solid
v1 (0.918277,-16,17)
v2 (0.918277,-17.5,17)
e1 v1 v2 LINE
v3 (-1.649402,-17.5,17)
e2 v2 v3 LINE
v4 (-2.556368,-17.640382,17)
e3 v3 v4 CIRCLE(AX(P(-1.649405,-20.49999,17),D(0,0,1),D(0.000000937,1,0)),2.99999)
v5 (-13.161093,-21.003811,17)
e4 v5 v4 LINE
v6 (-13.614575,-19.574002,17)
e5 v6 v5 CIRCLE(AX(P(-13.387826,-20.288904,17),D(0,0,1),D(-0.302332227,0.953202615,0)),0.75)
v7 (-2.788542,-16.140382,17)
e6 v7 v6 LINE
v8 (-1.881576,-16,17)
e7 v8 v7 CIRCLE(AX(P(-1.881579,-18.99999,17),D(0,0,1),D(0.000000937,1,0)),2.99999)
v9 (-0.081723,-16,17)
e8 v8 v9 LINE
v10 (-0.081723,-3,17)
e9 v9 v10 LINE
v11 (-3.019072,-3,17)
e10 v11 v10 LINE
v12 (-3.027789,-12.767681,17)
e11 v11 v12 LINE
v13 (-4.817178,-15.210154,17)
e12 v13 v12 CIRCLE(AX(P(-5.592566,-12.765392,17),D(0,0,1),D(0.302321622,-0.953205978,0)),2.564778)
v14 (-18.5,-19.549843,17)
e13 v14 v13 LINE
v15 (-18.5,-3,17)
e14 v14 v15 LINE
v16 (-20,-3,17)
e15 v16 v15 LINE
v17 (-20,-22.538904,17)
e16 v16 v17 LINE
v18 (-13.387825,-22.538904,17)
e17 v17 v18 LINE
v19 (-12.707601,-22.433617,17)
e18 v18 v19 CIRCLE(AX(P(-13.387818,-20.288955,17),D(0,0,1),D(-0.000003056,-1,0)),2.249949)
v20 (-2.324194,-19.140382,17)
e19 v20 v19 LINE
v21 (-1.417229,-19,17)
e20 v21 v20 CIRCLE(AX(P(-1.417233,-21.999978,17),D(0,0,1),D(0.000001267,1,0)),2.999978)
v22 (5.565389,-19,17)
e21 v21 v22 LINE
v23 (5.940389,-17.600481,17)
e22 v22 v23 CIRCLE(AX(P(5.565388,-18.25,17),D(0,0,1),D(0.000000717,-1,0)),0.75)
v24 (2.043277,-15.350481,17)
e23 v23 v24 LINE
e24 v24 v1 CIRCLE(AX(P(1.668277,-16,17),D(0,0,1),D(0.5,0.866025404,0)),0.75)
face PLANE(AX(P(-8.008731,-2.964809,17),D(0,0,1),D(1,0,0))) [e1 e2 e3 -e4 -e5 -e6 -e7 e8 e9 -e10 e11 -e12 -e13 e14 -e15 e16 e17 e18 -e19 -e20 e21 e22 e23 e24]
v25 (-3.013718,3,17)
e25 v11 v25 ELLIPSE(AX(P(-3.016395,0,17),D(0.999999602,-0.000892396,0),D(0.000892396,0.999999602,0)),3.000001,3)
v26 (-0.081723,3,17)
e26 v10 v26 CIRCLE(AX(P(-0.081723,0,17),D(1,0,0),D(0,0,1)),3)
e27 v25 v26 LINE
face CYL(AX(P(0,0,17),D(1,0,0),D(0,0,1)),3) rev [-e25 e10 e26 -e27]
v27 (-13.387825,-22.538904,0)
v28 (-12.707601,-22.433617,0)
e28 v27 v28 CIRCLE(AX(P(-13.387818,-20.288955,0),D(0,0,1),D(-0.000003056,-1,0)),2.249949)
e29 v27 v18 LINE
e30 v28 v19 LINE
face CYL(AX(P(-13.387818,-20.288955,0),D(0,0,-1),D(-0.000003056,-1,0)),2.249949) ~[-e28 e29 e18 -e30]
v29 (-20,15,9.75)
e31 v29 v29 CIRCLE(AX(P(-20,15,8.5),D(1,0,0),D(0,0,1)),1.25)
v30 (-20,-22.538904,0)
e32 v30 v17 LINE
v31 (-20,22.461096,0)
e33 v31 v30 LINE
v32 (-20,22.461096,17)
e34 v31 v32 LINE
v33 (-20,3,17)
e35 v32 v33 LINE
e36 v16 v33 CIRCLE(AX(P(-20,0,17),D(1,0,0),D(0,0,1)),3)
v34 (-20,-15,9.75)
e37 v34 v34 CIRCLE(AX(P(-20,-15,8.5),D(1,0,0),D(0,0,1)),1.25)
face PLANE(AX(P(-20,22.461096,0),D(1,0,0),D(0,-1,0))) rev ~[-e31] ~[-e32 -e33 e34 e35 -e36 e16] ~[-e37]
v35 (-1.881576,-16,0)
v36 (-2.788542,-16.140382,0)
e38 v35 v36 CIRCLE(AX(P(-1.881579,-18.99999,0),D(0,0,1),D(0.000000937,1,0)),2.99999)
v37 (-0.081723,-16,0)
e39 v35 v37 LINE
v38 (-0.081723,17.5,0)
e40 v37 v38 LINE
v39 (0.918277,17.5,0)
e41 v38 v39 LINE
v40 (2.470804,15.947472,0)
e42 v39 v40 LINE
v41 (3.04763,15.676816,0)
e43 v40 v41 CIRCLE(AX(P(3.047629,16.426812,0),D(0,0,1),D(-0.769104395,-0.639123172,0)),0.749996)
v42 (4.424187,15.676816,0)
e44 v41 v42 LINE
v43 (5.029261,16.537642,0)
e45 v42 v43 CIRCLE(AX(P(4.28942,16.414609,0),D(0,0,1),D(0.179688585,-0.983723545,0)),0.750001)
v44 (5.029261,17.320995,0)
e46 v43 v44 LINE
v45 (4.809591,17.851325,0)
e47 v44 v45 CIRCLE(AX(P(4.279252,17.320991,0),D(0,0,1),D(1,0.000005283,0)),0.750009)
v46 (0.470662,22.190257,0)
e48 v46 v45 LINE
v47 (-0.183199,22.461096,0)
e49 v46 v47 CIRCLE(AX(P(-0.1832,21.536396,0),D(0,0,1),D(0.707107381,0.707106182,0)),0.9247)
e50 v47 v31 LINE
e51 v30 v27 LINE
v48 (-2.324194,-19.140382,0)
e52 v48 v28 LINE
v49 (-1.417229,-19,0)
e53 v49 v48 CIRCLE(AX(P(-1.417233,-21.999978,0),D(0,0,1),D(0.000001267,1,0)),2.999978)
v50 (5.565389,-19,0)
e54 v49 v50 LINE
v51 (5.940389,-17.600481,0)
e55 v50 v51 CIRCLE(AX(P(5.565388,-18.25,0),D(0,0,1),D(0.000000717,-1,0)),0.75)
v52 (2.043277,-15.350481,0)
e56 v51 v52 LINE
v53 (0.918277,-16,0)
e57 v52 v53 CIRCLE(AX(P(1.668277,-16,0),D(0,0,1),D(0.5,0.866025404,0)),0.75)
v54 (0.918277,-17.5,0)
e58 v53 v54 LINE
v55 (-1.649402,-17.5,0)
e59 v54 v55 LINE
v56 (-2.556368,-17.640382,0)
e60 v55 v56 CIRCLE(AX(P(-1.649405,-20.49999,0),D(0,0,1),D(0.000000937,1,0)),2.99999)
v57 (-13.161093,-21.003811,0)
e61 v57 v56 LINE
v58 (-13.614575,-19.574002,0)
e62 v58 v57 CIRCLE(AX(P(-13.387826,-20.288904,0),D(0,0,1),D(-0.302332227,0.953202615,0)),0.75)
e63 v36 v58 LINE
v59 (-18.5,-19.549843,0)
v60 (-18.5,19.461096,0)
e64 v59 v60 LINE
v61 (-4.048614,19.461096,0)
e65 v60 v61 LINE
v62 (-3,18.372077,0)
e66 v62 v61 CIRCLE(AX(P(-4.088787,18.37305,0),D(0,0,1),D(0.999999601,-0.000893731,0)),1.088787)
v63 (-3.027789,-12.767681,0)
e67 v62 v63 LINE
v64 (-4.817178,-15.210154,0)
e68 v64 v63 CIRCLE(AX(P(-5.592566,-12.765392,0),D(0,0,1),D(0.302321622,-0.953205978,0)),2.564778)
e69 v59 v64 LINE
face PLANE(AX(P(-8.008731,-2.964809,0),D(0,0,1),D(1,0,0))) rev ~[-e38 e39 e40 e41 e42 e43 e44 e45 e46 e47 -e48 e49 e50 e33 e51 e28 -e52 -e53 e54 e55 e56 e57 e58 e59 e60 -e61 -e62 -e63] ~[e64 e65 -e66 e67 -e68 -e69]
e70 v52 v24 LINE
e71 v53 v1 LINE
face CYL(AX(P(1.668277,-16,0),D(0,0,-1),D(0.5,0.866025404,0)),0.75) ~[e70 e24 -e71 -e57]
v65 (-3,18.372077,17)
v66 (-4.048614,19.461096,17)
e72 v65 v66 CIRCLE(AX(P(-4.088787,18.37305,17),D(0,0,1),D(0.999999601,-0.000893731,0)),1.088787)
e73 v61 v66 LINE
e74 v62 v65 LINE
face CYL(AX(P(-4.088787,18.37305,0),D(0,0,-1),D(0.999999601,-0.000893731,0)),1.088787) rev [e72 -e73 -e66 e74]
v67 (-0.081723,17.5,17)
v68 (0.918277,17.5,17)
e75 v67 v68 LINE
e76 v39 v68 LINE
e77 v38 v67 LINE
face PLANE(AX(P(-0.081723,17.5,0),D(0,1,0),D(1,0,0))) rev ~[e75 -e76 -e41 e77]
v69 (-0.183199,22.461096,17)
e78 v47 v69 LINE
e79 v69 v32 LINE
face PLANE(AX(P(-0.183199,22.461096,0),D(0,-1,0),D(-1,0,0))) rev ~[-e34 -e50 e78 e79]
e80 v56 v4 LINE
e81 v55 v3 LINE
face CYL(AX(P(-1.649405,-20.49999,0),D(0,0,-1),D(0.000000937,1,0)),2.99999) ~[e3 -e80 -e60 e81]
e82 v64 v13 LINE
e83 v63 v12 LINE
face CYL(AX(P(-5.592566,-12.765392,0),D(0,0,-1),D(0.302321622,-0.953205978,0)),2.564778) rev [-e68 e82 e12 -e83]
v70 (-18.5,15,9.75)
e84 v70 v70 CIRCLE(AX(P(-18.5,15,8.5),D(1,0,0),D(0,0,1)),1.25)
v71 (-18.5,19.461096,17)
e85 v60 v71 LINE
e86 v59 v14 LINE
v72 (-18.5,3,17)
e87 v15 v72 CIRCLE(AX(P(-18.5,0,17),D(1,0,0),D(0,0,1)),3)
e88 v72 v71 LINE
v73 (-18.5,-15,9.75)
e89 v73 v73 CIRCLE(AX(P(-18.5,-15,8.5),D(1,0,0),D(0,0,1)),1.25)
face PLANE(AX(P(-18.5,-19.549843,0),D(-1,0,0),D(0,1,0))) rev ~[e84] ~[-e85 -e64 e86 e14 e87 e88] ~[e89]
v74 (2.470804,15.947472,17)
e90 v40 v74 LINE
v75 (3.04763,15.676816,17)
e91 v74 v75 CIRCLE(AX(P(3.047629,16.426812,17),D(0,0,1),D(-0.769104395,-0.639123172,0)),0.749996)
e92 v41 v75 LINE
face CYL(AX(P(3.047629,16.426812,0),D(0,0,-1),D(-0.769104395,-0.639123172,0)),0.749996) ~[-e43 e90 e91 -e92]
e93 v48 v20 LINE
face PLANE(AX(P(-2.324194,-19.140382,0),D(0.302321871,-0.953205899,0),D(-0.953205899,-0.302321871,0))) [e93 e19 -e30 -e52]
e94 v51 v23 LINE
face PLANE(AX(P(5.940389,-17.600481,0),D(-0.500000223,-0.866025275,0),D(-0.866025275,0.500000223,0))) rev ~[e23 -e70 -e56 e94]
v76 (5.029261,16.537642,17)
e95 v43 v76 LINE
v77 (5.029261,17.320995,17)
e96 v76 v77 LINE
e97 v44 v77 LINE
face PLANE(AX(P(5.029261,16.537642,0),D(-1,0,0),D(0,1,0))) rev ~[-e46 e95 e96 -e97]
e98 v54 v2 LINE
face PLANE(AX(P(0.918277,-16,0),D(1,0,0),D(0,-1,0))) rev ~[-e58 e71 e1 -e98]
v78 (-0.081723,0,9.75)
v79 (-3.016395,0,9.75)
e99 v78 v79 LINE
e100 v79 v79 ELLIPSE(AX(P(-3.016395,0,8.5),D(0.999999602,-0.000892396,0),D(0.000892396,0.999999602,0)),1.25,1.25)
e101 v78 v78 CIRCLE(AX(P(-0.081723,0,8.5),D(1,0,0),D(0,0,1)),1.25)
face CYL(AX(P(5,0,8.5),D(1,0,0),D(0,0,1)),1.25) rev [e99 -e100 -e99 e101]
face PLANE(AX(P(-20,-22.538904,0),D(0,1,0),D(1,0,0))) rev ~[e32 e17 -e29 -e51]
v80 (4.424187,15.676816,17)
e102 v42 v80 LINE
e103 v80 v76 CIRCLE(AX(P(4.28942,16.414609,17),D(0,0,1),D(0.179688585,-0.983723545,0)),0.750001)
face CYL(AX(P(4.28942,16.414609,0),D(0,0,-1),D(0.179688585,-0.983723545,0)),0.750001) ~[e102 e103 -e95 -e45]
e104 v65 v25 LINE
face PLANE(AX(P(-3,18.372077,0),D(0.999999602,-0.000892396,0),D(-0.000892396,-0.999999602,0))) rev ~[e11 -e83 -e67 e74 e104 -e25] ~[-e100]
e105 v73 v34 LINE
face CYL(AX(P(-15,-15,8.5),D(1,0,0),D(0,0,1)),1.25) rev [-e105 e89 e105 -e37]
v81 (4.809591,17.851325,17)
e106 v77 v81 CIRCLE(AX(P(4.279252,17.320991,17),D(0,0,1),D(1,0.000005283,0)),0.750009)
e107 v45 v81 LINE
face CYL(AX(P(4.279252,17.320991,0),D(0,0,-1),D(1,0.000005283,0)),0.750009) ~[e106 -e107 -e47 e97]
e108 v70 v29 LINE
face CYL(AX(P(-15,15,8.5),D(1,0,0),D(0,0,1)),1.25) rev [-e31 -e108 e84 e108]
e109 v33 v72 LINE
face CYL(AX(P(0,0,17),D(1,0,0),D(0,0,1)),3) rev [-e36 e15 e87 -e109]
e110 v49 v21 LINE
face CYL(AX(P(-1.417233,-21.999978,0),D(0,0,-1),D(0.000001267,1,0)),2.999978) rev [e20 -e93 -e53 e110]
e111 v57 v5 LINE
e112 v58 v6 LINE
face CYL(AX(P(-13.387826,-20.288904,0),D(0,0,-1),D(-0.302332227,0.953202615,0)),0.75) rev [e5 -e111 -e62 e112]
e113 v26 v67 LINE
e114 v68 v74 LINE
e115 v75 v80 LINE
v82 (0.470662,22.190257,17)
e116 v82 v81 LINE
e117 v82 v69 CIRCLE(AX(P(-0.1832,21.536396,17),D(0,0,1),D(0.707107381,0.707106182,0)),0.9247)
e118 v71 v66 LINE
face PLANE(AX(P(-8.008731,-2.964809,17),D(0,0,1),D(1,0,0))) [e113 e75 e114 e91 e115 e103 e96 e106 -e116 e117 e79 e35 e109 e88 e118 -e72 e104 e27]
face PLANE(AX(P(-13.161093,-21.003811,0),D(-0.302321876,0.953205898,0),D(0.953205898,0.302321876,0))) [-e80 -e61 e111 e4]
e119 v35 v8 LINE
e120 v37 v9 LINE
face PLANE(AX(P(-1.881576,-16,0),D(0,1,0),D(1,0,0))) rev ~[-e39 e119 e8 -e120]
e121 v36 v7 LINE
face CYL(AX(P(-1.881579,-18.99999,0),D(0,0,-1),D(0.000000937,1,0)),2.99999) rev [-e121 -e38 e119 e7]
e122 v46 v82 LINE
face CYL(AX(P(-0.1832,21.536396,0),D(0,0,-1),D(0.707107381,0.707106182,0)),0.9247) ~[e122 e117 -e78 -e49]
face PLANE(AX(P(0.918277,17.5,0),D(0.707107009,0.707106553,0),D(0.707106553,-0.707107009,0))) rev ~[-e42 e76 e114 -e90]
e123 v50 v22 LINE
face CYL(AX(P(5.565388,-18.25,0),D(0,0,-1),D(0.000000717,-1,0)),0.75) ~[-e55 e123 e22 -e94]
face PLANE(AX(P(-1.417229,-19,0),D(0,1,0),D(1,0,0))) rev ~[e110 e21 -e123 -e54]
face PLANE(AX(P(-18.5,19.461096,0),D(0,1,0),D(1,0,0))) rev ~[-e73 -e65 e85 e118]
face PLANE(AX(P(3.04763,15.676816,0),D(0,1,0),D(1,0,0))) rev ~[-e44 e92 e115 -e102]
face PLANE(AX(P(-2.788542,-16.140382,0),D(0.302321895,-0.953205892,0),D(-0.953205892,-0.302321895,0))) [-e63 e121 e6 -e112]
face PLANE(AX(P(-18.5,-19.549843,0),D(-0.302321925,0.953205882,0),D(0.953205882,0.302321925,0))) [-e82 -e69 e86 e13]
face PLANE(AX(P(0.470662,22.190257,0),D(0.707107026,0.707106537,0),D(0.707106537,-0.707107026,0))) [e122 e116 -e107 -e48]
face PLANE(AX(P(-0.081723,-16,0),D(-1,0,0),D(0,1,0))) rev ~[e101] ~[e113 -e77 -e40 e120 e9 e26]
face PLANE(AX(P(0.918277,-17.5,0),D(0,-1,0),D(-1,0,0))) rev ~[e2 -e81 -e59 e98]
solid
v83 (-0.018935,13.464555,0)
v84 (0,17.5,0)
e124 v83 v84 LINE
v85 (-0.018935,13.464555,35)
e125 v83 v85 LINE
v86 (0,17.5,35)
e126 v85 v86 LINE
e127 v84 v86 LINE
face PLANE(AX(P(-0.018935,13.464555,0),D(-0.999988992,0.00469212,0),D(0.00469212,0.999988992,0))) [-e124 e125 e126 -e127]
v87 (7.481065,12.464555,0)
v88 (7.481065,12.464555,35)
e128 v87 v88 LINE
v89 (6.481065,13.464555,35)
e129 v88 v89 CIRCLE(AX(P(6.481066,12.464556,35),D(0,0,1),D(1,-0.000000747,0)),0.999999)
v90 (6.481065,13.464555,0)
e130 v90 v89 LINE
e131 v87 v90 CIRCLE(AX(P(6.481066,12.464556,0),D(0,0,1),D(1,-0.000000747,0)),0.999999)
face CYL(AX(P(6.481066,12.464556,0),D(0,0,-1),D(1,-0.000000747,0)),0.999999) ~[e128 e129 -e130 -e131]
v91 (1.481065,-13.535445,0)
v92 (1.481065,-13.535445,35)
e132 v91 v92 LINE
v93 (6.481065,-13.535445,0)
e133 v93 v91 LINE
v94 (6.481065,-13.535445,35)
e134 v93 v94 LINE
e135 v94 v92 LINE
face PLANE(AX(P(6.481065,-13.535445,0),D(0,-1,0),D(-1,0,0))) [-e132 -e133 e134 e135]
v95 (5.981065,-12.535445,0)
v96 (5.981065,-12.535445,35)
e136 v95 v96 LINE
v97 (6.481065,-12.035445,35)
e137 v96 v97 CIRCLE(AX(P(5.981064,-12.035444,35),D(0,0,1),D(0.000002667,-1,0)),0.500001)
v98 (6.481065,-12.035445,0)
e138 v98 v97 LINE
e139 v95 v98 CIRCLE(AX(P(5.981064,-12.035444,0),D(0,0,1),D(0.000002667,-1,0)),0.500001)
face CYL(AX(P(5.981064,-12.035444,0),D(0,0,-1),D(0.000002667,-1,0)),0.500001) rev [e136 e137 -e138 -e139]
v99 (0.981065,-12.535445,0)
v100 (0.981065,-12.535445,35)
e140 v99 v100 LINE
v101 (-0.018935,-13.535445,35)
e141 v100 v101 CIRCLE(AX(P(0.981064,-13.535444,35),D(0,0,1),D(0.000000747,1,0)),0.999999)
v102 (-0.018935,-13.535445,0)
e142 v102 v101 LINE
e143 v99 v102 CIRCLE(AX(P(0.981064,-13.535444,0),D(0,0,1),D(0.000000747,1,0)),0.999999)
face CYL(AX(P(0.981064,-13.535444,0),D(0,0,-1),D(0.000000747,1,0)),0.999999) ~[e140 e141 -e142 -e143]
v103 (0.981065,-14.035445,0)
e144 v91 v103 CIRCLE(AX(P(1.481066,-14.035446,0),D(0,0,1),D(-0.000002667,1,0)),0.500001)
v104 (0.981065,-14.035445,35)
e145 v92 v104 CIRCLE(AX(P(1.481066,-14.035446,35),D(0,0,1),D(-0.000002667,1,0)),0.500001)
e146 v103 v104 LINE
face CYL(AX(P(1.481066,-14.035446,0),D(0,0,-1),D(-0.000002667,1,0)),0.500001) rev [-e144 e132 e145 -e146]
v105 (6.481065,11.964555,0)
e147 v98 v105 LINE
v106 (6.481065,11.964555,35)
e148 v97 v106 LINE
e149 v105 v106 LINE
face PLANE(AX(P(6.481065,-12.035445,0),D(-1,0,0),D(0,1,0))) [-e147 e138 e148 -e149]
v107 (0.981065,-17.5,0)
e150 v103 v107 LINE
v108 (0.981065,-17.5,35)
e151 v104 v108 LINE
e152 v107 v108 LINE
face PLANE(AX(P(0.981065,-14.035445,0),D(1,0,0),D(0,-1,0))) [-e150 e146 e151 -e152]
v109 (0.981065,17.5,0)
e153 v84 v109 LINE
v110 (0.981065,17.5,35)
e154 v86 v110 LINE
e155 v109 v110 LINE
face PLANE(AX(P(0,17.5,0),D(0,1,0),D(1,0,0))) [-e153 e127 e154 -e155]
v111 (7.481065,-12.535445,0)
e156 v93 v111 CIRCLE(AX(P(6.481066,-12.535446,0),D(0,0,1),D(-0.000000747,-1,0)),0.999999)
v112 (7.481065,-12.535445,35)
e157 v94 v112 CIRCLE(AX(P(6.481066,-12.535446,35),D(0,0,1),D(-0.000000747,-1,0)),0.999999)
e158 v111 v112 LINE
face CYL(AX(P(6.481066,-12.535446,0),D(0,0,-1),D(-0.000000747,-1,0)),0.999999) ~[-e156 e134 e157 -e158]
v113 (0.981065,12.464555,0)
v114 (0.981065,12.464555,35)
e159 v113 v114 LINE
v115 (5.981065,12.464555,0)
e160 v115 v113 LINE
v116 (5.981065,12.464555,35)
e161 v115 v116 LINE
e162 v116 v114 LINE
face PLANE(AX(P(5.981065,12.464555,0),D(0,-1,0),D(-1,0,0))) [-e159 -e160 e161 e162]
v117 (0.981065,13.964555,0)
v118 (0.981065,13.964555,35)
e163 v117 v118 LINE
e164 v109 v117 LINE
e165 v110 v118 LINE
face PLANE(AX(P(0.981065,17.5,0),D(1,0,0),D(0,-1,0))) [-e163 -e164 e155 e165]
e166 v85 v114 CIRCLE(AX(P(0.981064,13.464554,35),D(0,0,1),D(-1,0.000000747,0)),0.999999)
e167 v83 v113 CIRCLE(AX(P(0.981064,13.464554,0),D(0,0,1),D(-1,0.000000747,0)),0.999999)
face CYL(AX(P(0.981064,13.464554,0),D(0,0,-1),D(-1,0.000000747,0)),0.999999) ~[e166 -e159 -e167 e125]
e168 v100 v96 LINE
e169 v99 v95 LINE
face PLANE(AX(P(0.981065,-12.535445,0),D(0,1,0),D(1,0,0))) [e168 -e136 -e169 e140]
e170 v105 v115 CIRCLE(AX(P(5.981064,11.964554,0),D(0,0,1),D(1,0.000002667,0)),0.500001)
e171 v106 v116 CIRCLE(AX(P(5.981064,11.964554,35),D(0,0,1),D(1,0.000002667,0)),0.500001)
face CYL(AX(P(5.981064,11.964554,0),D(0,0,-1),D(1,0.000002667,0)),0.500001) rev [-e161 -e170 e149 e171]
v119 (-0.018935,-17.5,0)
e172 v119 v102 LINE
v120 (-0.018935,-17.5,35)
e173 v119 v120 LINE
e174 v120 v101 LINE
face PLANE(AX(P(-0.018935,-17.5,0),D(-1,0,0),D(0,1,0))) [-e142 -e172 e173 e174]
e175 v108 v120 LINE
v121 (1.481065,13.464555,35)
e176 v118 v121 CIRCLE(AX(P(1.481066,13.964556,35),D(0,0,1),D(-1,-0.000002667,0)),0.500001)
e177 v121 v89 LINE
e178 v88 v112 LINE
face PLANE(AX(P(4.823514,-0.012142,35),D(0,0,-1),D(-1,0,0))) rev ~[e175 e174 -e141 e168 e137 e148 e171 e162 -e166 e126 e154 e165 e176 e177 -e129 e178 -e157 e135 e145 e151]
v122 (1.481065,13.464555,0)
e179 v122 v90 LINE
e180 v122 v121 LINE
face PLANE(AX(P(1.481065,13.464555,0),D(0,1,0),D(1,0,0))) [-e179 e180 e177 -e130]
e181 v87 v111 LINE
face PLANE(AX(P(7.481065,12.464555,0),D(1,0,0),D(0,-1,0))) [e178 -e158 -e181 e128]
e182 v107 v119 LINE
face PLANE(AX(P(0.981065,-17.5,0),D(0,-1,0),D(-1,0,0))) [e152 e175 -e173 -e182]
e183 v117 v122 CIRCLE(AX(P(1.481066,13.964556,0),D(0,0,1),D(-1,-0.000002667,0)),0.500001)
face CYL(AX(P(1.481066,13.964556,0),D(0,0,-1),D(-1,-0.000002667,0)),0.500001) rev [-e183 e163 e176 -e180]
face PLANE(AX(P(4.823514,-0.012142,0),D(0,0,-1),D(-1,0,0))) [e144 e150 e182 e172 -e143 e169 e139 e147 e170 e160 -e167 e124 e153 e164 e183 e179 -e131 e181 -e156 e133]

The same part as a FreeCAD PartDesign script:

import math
import FreeCAD as App
import Part
import Sketcher
from FreeCAD import Vector

doc = App.newDocument("Part")
body = doc.addObject("PartDesign::Body", "Body")

# Sketch on XY plane
sketch1 = body.newObject("Sketcher::SketchObject", "Sketch")
sketch1.AttachmentSupport = (doc.getObject("XY_Plane"), [""])
sketch1.MapMode = "FlatFace"
sketch1.addGeometry(Part.LineSegment(Vector(0.981065, 17.5, 0), Vector(0, 17.5, 0)), False)
sketch1.addGeometry(Part.LineSegment(Vector(0, 17.5, 0), Vector(-0.018935, 13.464555, 0)), False)
sketch1.addGeometry(Part.ArcOfCircle(Part.Circle(Vector(0.981064, 13.464554, 0), Vector(0, 0, 1), 0.999999), math.radians(179.999957), math.radians(270.000043)), False)
sketch1.addGeometry(Part.LineSegment(Vector(0.981065, 12.464555, 0), Vector(5.981065, 12.464555, 0)), False)
sketch1.addGeometry(Part.ArcOfCircle(Part.Circle(Vector(5.981064, 11.964554, 0), Vector(0, 0, 1), 0.500001), math.radians(0.000153), math.radians(89.999847)), False)
sketch1.addGeometry(Part.LineSegment(Vector(6.481065, 11.964555, 0), Vector(6.481065, -12.035445, 0)), False)
sketch1.addGeometry(Part.ArcOfCircle(Part.Circle(Vector(5.981064, -12.035444, 0), Vector(0, 0, 1), 0.500001), math.radians(-89.999847), math.radians(-0.000153)), False)
sketch1.addGeometry(Part.LineSegment(Vector(5.981065, -12.535445, 0), Vector(0.981065, -12.535445, 0)), False)
sketch1.addGeometry(Part.ArcOfCircle(Part.Circle(Vector(0.981064, -13.535444, 0), Vector(0, 0, 1), 0.999999), math.radians(89.999957), math.radians(180.000043)), False)
sketch1.addGeometry(Part.LineSegment(Vector(-0.018935, -13.535445, 0), Vector(-0.018935, -17.5, 0)), False)
sketch1.addGeometry(Part.LineSegment(Vector(-0.018935, -17.5, 0), Vector(0.981065, -17.5, 0)), False)
sketch1.addGeometry(Part.LineSegment(Vector(0.981065, -17.5, 0), Vector(0.981065, -14.035445, 0)), False)
sketch1.addGeometry(Part.ArcOfCircle(Part.Circle(Vector(1.481066, -14.035446, 0), Vector(0, 0, 1), 0.500001), math.radians(90.000153), math.radians(179.999847)), False)
sketch1.addGeometry(Part.LineSegment(Vector(1.481065, -13.535445, 0), Vector(6.481065, -13.535445, 0)), False)
sketch1.addGeometry(Part.ArcOfCircle(Part.Circle(Vector(6.481066, -12.535446, 0), Vector(0, 0, 1), 0.999999), math.radians(-90.000043), math.radians(0.000043)), False)
sketch1.addGeometry(Part.LineSegment(Vector(7.481065, -12.535445, 0), Vector(7.481065, 12.464555, 0)), False)
sketch1.addGeometry(Part.ArcOfCircle(Part.Circle(Vector(6.481066, 12.464556, 0), Vector(0, 0, 1), 0.999999), math.radians(-0.000043), math.radians(90.000043)), False)
sketch1.addGeometry(Part.LineSegment(Vector(6.481065, 13.464555, 0), Vector(1.481065, 13.464555, 0)), False)
sketch1.addGeometry(Part.ArcOfCircle(Part.Circle(Vector(1.481066, 13.964556, 0), Vector(0, 0, 1), 0.500001), math.radians(-179.999847), math.radians(-90.000153)), False)
sketch1.addGeometry(Part.LineSegment(Vector(0.981065, 13.964555, 0), Vector(0.981065, 17.5, 0)), False)
sketch1.addConstraint(Sketcher.Constraint("Coincident", 0, 2, 1, 1))
sketch1.addConstraint(Sketcher.Constraint("Coincident", 1, 2, 2, 1))
sketch1.addConstraint(Sketcher.Constraint("Tangent", 2, 2, 3, 1))
sketch1.addConstraint(Sketcher.Constraint("Coincident", 3, 2, 4, 2))
sketch1.addConstraint(Sketcher.Constraint("Coincident", 4, 1, 5, 1))
sketch1.addConstraint(Sketcher.Constraint("Coincident", 5, 2, 6, 2))
sketch1.addConstraint(Sketcher.Constraint("Coincident", 6, 1, 7, 1))
sketch1.addConstraint(Sketcher.Constraint("Tangent", 7, 2, 8, 1))
sketch1.addConstraint(Sketcher.Constraint("Tangent", 8, 2, 9, 1))
sketch1.addConstraint(Sketcher.Constraint("Coincident", 9, 2, 10, 1))
sketch1.addConstraint(Sketcher.Constraint("Coincident", 10, 2, 11, 1))
sketch1.addConstraint(Sketcher.Constraint("Coincident", 11, 2, 12, 2))
sketch1.addConstraint(Sketcher.Constraint("Coincident", 12, 1, 13, 1))
sketch1.addConstraint(Sketcher.Constraint("Tangent", 13, 2, 14, 1))
sketch1.addConstraint(Sketcher.Constraint("Tangent", 14, 2, 15, 1))
sketch1.addConstraint(Sketcher.Constraint("Tangent", 15, 2, 16, 1))
sketch1.addConstraint(Sketcher.Constraint("Tangent", 16, 2, 17, 1))
sketch1.addConstraint(Sketcher.Constraint("Coincident", 17, 2, 18, 2))
sketch1.addConstraint(Sketcher.Constraint("Coincident", 18, 1, 19, 1))
sketch1.addConstraint(Sketcher.Constraint("Coincident", 19, 2, 0, 1))
sketch1.addConstraint(Sketcher.Constraint("Horizontal", 0))
sketch1.addConstraint(Sketcher.Constraint("Horizontal", 3))
sketch1.addConstraint(Sketcher.Constraint("Vertical", 5))
sketch1.addConstraint(Sketcher.Constraint("Horizontal", 7))
sketch1.addConstraint(Sketcher.Constraint("Vertical", 9))
sketch1.addConstraint(Sketcher.Constraint("Horizontal", 10))
sketch1.addConstraint(Sketcher.Constraint("Vertical", 11))
sketch1.addConstraint(Sketcher.Constraint("Horizontal", 13))
sketch1.addConstraint(Sketcher.Constraint("Vertical", 15))
sketch1.addConstraint(Sketcher.Constraint("Horizontal", 17))
sketch1.addConstraint(Sketcher.Constraint("Vertical", 19))
sketch1.addConstraint(Sketcher.Constraint("Equal", 4, 6))
sketch1.addConstraint(Sketcher.Constraint("Equal", 2, 8))
sketch1.addConstraint(Sketcher.Constraint("Equal", 6, 12))
sketch1.addConstraint(Sketcher.Constraint("Equal", 8, 14))
sketch1.addConstraint(Sketcher.Constraint("Equal", 14, 16))
sketch1.addConstraint(Sketcher.Constraint("Equal", 12, 18))
sketch1.addConstraint(Sketcher.Constraint("Symmetric", 10, 2, 19, 2, -1))
sketch1.addConstraint(Sketcher.Constraint("PointOnObject", 0, 2, -2))
sketch1.addConstraint(Sketcher.Constraint("Horizontal", 2, 3, 1, 2))
sketch1.addConstraint(Sketcher.Constraint("Horizontal", 16, 3, 2, 2))
sketch1.addConstraint(Sketcher.Constraint("Horizontal", 6, 3, 5, 2))
sketch1.addConstraint(Sketcher.Constraint("Horizontal", 14, 3, 6, 1))
sketch1.addConstraint(Sketcher.Constraint("Horizontal", 12, 3, 11, 2))
sketch1.addConstraint(Sketcher.Constraint("Vertical", 2, 3, 8, 3))
sketch1.addConstraint(Sketcher.Constraint("Vertical", 6, 3, 3, 2))
sketch1.addConstraint(Sketcher.Constraint("Vertical", 16, 3, 4, 1))
sketch1.addConstraint(Sketcher.Constraint("Vertical", 3, 2, 6, 1))
sketch1.addConstraint(Sketcher.Constraint("Vertical", 7, 2, 10, 2))
sketch1.addConstraint(Sketcher.Constraint("Vertical", 18, 3, 12, 1))
sketch1.addConstraint(Sketcher.Constraint("Vertical", 12, 1, 17, 2))
sketch1.addConstraint(Sketcher.Constraint("Radius", 2, 0.999999))
sketch1.addConstraint(Sketcher.Constraint("Radius", 4, 0.500001))
sketch1.addConstraint(Sketcher.Constraint("DistanceX", 3, 1, 3, 2, 5.0))
sketch1.addConstraint(Sketcher.Constraint("DistanceY", 5, 2, 5, 1, 24.0))
sketch1.addConstraint(Sketcher.Constraint("DistanceY", 15, 1, 15, 2, 25.0))
sketch1.addConstraint(Sketcher.Constraint("DistanceY", -1, 1, 0, 2, 17.5))
sketch1.addConstraint(Sketcher.Constraint("DistanceY", 2, 3, 18, 1, 0.500001))
sketch1.addConstraint(Sketcher.Constraint("Distance", 1, 4.035489))
sketch1.addConstraint(Sketcher.Constraint("DistanceX", 0, 2, 0, 1, 0.981065))
pad1 = body.newObject("PartDesign::Pad", "Pad")
pad1.Profile = sketch1
pad1.Length = 35
body2 = doc.addObject("PartDesign::Body", "Body001")

# Sketch on XY plane
sketch2 = body2.newObject("Sketcher::SketchObject", "Sketch001")
sketch2.AttachmentSupport = (doc.getObject("XY_Plane001"), [""])
sketch2.MapMode = "FlatFace"
sketch2.addGeometry(Part.Circle(Vector(0, 0, 0), Vector(0, 0, 1), 1.25), False)
sketch2.addConstraint(Sketcher.Constraint("Coincident", 0, 3, -1, 1))
sketch2.addConstraint(Sketcher.Constraint("Diameter", 0, 2.5))
pad2 = body2.newObject("PartDesign::Pad", "Pad001")
pad2.Profile = sketch2
pad2.Length = 10
body3 = doc.addObject("PartDesign::Body", "Body002")
doc.recompute()

body2.Placement = App.Placement(Vector(0, 0, 0), App.Rotation(Vector(0, 1, 0), 270))
boolean = body3.newObject("PartDesign::Boolean", "Boolean")
boolean.Type = "Fuse"
boolean.addObjects([body2])
body4 = doc.addObject("PartDesign::Body", "Body003")
doc.recompute()

body3.Placement = App.Placement(Vector(5, 0, 8.5), App.Rotation(Vector(0, 0, 1), 0))
boolean2 = body4.newObject("PartDesign::Boolean", "Boolean001")
boolean2.Type = "Fuse"
boolean2.addObjects([body3])
body5 = doc.addObject("PartDesign::Body", "Body004")

# Sketch on XY plane
sketch3 = body5.newObject("Sketcher::SketchObject", "Sketch002")
sketch3.AttachmentSupport = (doc.getObject("XY_Plane004"), [""])
sketch3.MapMode = "FlatFace"
sketch3.addGeometry(Part.Circle(Vector(0, 0, 0), Vector(0, 0, 1), 1.25), False)
sketch3.addConstraint(Sketcher.Constraint("Coincident", 0, 3, -1, 1))
sketch3.addConstraint(Sketcher.Constraint("Diameter", 0, 2.5))
pad3 = body5.newObject("PartDesign::Pad", "Pad002")
pad3.Profile = sketch3
pad3.Length = 10
body6 = doc.addObject("PartDesign::Body", "Body005")
doc.recompute()

body5.Placement = App.Placement(Vector(0, 0, 0), App.Rotation(Vector(0, 1, 0), 270))
boolean3 = body6.newObject("PartDesign::Boolean", "Boolean002")
boolean3.Type = "Fuse"
boolean3.addObjects([body5])
body7 = doc.addObject("PartDesign::Body", "Body006")
doc.recompute()

body6.Placement = App.Placement(Vector(-15, -15, 8.5), App.Rotation(Vector(0, 0, 1), 0))
boolean4 = body7.newObject("PartDesign::Boolean", "Boolean003")
boolean4.Type = "Fuse"
boolean4.addObjects([body6])
body8 = doc.addObject("PartDesign::Body", "Body007")

# Sketch on XY plane
sketch4 = body8.newObject("Sketcher::SketchObject", "Sketch003")
sketch4.AttachmentSupport = (doc.getObject("XY_Plane007"), [""])
sketch4.MapMode = "FlatFace"
sketch4.addGeometry(Part.Circle(Vector(0, 0, 0), Vector(0, 0, 1), 1.25), False)
sketch4.addConstraint(Sketcher.Constraint("Coincident", 0, 3, -1, 1))
sketch4.addConstraint(Sketcher.Constraint("Diameter", 0, 2.5))
pad4 = body8.newObject("PartDesign::Pad", "Pad003")
pad4.Profile = sketch4
pad4.Length = 10
body9 = doc.addObject("PartDesign::Body", "Body008")
doc.recompute()

body8.Placement = App.Placement(Vector(0, 0, 0), App.Rotation(Vector(0, 1, 0), 270))
boolean5 = body9.newObject("PartDesign::Boolean", "Boolean004")
boolean5.Type = "Fuse"
boolean5.addObjects([body8])
body10 = doc.addObject("PartDesign::Body", "Body009")
doc.recompute()

body9.Placement = App.Placement(Vector(-15, 15, 8.5), App.Rotation(Vector(0, 0, 1), 0))
boolean6 = body10.newObject("PartDesign::Boolean", "Boolean005")
boolean6.Type = "Fuse"
boolean6.addObjects([body9])
body11 = doc.addObject("PartDesign::Body", "Body010")

# Sketch on XY plane
sketch5 = body11.newObject("Sketcher::SketchObject", "Sketch004")
sketch5.AttachmentSupport = (doc.getObject("XY_Plane010"), [""])
sketch5.MapMode = "FlatFace"
sketch5.addGeometry(Part.Circle(Vector(0, 0, 0), Vector(0, 0, 1), 3), False)
sketch5.addConstraint(Sketcher.Constraint("Coincident", 0, 3, -1, 1))
sketch5.addConstraint(Sketcher.Constraint("Diameter", 0, 6.0))
pad5 = body11.newObject("PartDesign::Pad", "Pad004")
pad5.Profile = sketch5
pad5.Length = 25
body12 = doc.addObject("PartDesign::Body", "Body011")
doc.recompute()

body11.Placement = App.Placement(Vector(0, 0, 0), App.Rotation(Vector(0, 1, 0), 270))
boolean7 = body12.newObject("PartDesign::Boolean", "Boolean006")
boolean7.Type = "Fuse"
boolean7.addObjects([body11])
body13 = doc.addObject("PartDesign::Body", "Body012")
body13.AllowCompound = True
doc.recompute()

body12.Placement = App.Placement(Vector(0, 0, 17), App.Rotation(Vector(0, 0, 1), 0))
boolean8 = body13.newObject("PartDesign::Boolean", "Boolean007")
boolean8.Type = "Fuse"
boolean8.addObjects([body12])
doc.recompute()

boolean9 = body13.newObject("PartDesign::Boolean", "Boolean008")
boolean9.Type = "Fuse"
boolean9.addObjects([body4])
doc.recompute()

boolean10 = body13.newObject("PartDesign::Boolean", "Boolean009")
boolean10.Type = "Fuse"
boolean10.addObjects([body7])
doc.recompute()

boolean11 = body13.newObject("PartDesign::Boolean", "Boolean010")
boolean11.Type = "Fuse"
boolean11.addObjects([body10])
body14 = doc.addObject("PartDesign::Body", "Body013")

# Sketch on XY plane
sketch6 = body14.newObject("Sketcher::SketchObject", "Sketch005")
sketch6.AttachmentSupport = (doc.getObject("XY_Plane013"), [""])
sketch6.MapMode = "FlatFace"
sketch6.addGeometry(Part.LineSegment(Vector(-0.183199, 22.461096, 0), Vector(-20, 22.461096, 0)), False)
sketch6.addGeometry(Part.LineSegment(Vector(-20, 22.461096, 0), Vector(-20, -22.538904, 0)), False)
sketch6.addGeometry(Part.LineSegment(Vector(-20, -22.538904, 0), Vector(-13.387825, -22.538904, 0)), False)
sketch6.addGeometry(Part.ArcOfCircle(Part.Circle(Vector(-13.387818, -20.288955, 0), Vector(0, 0, 1), 2.249949), math.radians(-90.000175), math.radians(-72.402661)), False)
sketch6.addGeometry(Part.LineSegment(Vector(-12.707601, -22.433617, 0), Vector(-2.324194, -19.140382, 0)), False)
sketch6.addGeometry(Part.ArcOfCircle(Part.Circle(Vector(-1.417233, -21.999978, 0), Vector(0, 0, 1), 2.999978), math.radians(89.999927), math.radians(107.597161)), False)
sketch6.addGeometry(Part.LineSegment(Vector(-1.417229, -19, 0), Vector(5.565389, -19, 0)), False)
sketch6.addGeometry(Part.ArcOfCircle(Part.Circle(Vector(5.565388, -18.25, 0), Vector(0, 0, 1), 0.75), math.radians(-89.999959), math.radians(59.999958)), False)
sketch6.addGeometry(Part.LineSegment(Vector(5.940389, -17.600481, 0), Vector(2.043277, -15.350481, 0)), False)
sketch6.addGeometry(Part.ArcOfCircle(Part.Circle(Vector(1.668277, -16, 0), Vector(0, 0, 1), 0.75), math.radians(60), math.radians(179.999996)), False)
sketch6.addGeometry(Part.LineSegment(Vector(0.918277, -16, 0), Vector(0.918277, -17.5, 0)), False)
sketch6.addGeometry(Part.LineSegment(Vector(0.918277, -17.5, 0), Vector(-1.649402, -17.5, 0)), False)
sketch6.addGeometry(Part.ArcOfCircle(Part.Circle(Vector(-1.649405, -20.49999, 0), Vector(0, 0, 1), 2.99999), math.radians(89.999946), math.radians(107.597123)), False)
sketch6.addGeometry(Part.LineSegment(Vector(-2.556368, -17.640382, 0), Vector(-13.161093, -21.003811, 0)), False)
sketch6.addGeometry(Part.ArcOfCircle(Part.Circle(Vector(-13.387826, -20.288904, 0), Vector(0, 0, 1), 0.75), math.radians(107.597736), math.radians(287.596429)), False)
sketch6.addGeometry(Part.LineSegment(Vector(-13.614575, -19.574002, 0), Vector(-2.788542, -16.140382, 0)), False)
sketch6.addGeometry(Part.ArcOfCircle(Part.Circle(Vector(-1.881579, -18.99999, 0), Vector(0, 0, 1), 2.99999), math.radians(89.999946), math.radians(107.597123)), False)
sketch6.addGeometry(Part.LineSegment(Vector(-1.881576, -16, 0), Vector(-0.081723, -16, 0)), False)
sketch6.addGeometry(Part.LineSegment(Vector(-0.081723, -16, 0), Vector(-0.081723, 17.5, 0)), False)
sketch6.addGeometry(Part.LineSegment(Vector(-0.081723, 17.5, 0), Vector(0.918277, 17.5, 0)), False)
sketch6.addGeometry(Part.LineSegment(Vector(0.918277, 17.5, 0), Vector(2.470804, 15.947472, 0)), False)
sketch6.addGeometry(Part.ArcOfCircle(Part.Circle(Vector(3.047629, 16.426812, 0), Vector(0, 0, 1), 0.749996), math.radians(-140.273532), math.radians(-89.999912)), False)
sketch6.addGeometry(Part.LineSegment(Vector(3.04763, 15.676816, 0), Vector(4.424187, 15.676816, 0)), False)
sketch6.addGeometry(Part.ArcOfCircle(Part.Circle(Vector(4.28942, 16.414609, 0), Vector(0, 0, 1), 0.750001), math.radians(-79.648379), math.radians(9.441665)), False)
sketch6.addGeometry(Part.LineSegment(Vector(5.029261, 16.537642, 0), Vector(5.029261, 17.320995, 0)), False)
sketch6.addGeometry(Part.ArcOfCircle(Part.Circle(Vector(4.279252, 17.320991, 0), Vector(0, 0, 1), 0.750009), math.radians(0.000303), math.radians(44.99972)), False)
sketch6.addGeometry(Part.LineSegment(Vector(4.809591, 17.851325, 0), Vector(0.470662, 22.190257, 0)), False)
sketch6.addGeometry(Part.ArcOfCircle(Part.Circle(Vector(-0.1832, 21.536396, 0), Vector(0, 0, 1), 0.9247), math.radians(44.999951), math.radians(89.999913)), False)
sketch6.addGeometry(Part.LineSegment(Vector(-18.5, -19.549843, 0), Vector(-18.5, 19.461096, 0)), False)
sketch6.addGeometry(Part.LineSegment(Vector(-18.5, 19.461096, 0), Vector(-4.048614, 19.461096, 0)), False)
sketch6.addGeometry(Part.ArcOfCircle(Part.Circle(Vector(-4.088787, 18.37305, 0), Vector(0, 0, 1), 1.088787), math.radians(-0.051207), math.radians(87.885484)), False)
sketch6.addGeometry(Part.LineSegment(Vector(-3, 18.372077, 0), Vector(-3.027789, -12.767681, 0)), False)
sketch6.addGeometry(Part.ArcOfCircle(Part.Circle(Vector(-5.592566, -12.765392, 0), Vector(0, 0, 1), 2.564778), math.radians(-72.402901), math.radians(-0.051125)), False)
sketch6.addGeometry(Part.LineSegment(Vector(-4.817178, -15.210154, 0), Vector(-18.5, -19.549843, 0)), False)
sketch6.addConstraint(Sketcher.Constraint("Coincident", 0, 2, 1, 1))
sketch6.addConstraint(Sketcher.Constraint("Coincident", 1, 2, 2, 1))
sketch6.addConstraint(Sketcher.Constraint("Coincident", 2, 2, 3, 1))
sketch6.addConstraint(Sketcher.Constraint("Coincident", 3, 2, 4, 1))
sketch6.addConstraint(Sketcher.Constraint("Coincident", 4, 2, 5, 2))
sketch6.addConstraint(Sketcher.Constraint("Coincident", 5, 1, 6, 1))
sketch6.addConstraint(Sketcher.Constraint("Coincident", 6, 2, 7, 1))
sketch6.addConstraint(Sketcher.Constraint("Coincident", 7, 2, 8, 1))
sketch6.addConstraint(Sketcher.Constraint("Coincident", 8, 2, 9, 1))
sketch6.addConstraint(Sketcher.Constraint("Coincident", 9, 2, 10, 1))
sketch6.addConstraint(Sketcher.Constraint("Coincident", 10, 2, 11, 1))
sketch6.addConstraint(Sketcher.Constraint("Coincident", 11, 2, 12, 1))
sketch6.addConstraint(Sketcher.Constraint("Coincident", 12, 2, 13, 1))
sketch6.addConstraint(Sketcher.Constraint("Coincident", 13, 2, 14, 2))
sketch6.addConstraint(Sketcher.Constraint("Coincident", 14, 1, 15, 1))
sketch6.addConstraint(Sketcher.Constraint("Coincident", 15, 2, 16, 2))
sketch6.addConstraint(Sketcher.Constraint("Coincident", 16, 1, 17, 1))
sketch6.addConstraint(Sketcher.Constraint("Coincident", 17, 2, 18, 1))
sketch6.addConstraint(Sketcher.Constraint("Coincident", 18, 2, 19, 1))
sketch6.addConstraint(Sketcher.Constraint("Coincident", 19, 2, 20, 1))
sketch6.addConstraint(Sketcher.Constraint("Coincident", 20, 2, 21, 1))
sketch6.addConstraint(Sketcher.Constraint("Coincident", 21, 2, 22, 1))
sketch6.addConstraint(Sketcher.Constraint("Coincident", 22, 2, 23, 1))
sketch6.addConstraint(Sketcher.Constraint("Coincident", 23, 2, 24, 1))
sketch6.addConstraint(Sketcher.Constraint("Coincident", 24, 2, 25, 1))
sketch6.addConstraint(Sketcher.Constraint("Coincident", 25, 2, 26, 1))
sketch6.addConstraint(Sketcher.Constraint("Coincident", 26, 2, 27, 1))
sketch6.addConstraint(Sketcher.Constraint("Coincident", 27, 2, 0, 1))
sketch6.addConstraint(Sketcher.Constraint("Coincident", 28, 2, 29, 1))
sketch6.addConstraint(Sketcher.Constraint("Coincident", 29, 2, 30, 2))
sketch6.addConstraint(Sketcher.Constraint("Coincident", 30, 1, 31, 1))
sketch6.addConstraint(Sketcher.Constraint("Coincident", 31, 2, 32, 2))
sketch6.addConstraint(Sketcher.Constraint("Coincident", 32, 1, 33, 1))
sketch6.addConstraint(Sketcher.Constraint("Coincident", 33, 2, 28, 1))
sketch6.addConstraint(Sketcher.Constraint("Horizontal", 0))
sketch6.addConstraint(Sketcher.Constraint("Vertical", 1))
sketch6.addConstraint(Sketcher.Constraint("Horizontal", 2))
sketch6.addConstraint(Sketcher.Constraint("Horizontal", 6))
sketch6.addConstraint(Sketcher.Constraint("Vertical", 10))
sketch6.addConstraint(Sketcher.Constraint("Horizontal", 11))
sketch6.addConstraint(Sketcher.Constraint("Horizontal", 17))
sketch6.addConstraint(Sketcher.Constraint("Vertical", 18))
sketch6.addConstraint(Sketcher.Constraint("Horizontal", 19))
sketch6.addConstraint(Sketcher.Constraint("Horizontal", 22))
sketch6.addConstraint(Sketcher.Constraint("Vertical", 24))
sketch6.addConstraint(Sketcher.Constraint("Vertical", 28))
sketch6.addConstraint(Sketcher.Constraint("Horizontal", 29))
sketch6.addConstraint(Sketcher.Constraint("DistanceX", 19, 1, 19, 2, 1.0))
sketch6.addConstraint(Sketcher.Constraint("DistanceY", 1, 2, 1, 1, 45.0))
sketch6.addConstraint(Sketcher.Constraint("Radius", 7, 0.75))
sketch6.addConstraint(Sketcher.Constraint("Radius", 9, 0.75))
sketch6.addConstraint(Sketcher.Constraint("Radius", 14, 0.75))
sketch6.addConstraint(Sketcher.Constraint("Radius", 23, 0.750001))
sketch6.addConstraint(Sketcher.Constraint("DistanceY", 10, 2, 10, 1, 1.5))
sketch6.addConstraint(Sketcher.Constraint("DistanceY", 18, 1, 18, 2, 33.5))
sketch6.addConstraint(Sketcher.Constraint("DistanceY", 9, 3, -1, 1, 16.0))
sketch6.addConstraint(Sketcher.Constraint("DistanceX", 0, 2, -1, 1, 20.0))
sketch6.addConstraint(Sketcher.Constraint("DistanceY", 5, 1, -1, 1, 19.0))
sketch6.addConstraint(Sketcher.Constraint("DistanceY", 9, 2, -1, 1, 16.0))
sketch6.addConstraint(Sketcher.Constraint("DistanceY", 16, 1, -1, 1, 16.0))
sketch6.addConstraint(Sketcher.Constraint("DistanceX", 30, 1, -1, 1, 3.0))
sketch6.addConstraint(Sketcher.Constraint("DistanceY", 4, 2, 15, 2, 3.0))
sketch6.addConstraint(Sketcher.Constraint("DistanceX", 17, 2, 9, 2, 1.0))
sketch6.addConstraint(Sketcher.Constraint("DistanceY", 28, 2, 0, 2, 3.0))
sketch6.addConstraint(Sketcher.Constraint("DistanceX", 28, 2, -1, 1, 18.5))
sketch6.addConstraint(Sketcher.Constraint("Radius", 27, 0.9247))
sketch6.addConstraint(Sketcher.Constraint("DistanceY", 12, 3, 16, 3, 1.5))
sketch6.addConstraint(Sketcher.Constraint("DistanceY", 4, 2, 12, 2, 1.5))
sketch6.addConstraint(Sketcher.Constraint("Radius", 3, 2.249949))
sketch6.addConstraint(Sketcher.Constraint("Radius", 12, 2.99999))
sketch6.addConstraint(Sketcher.Constraint("Radius", 25, 0.750009))
sketch6.addConstraint(Sketcher.Constraint("DistanceY", 1, 2, 14, 3, 2.25))
sketch6.addConstraint(Sketcher.Constraint("DistanceY", 7, 2, 8, 2, 2.25))
sketch6.addConstraint(Sketcher.Constraint("DistanceX", 0, 2, 0, 1, 19.816801))
sketch6.addConstraint(Sketcher.Constraint("DistanceY", 14, 1, -1, 1, 19.574002))
sketch6.addConstraint(Sketcher.Constraint("Radius", 5, 2.999978))
sketch6.addConstraint(Sketcher.Constraint("Radius", 21, 0.749996))
sketch6.addConstraint(Sketcher.Constraint("Radius", 30, 1.088787))
sketch6.addConstraint(Sketcher.Constraint("Radius", 32, 2.564778))
sketch6.addConstraint(Sketcher.Constraint("DistanceX", 16, 3, 23, 3, 6.170999))
sketch6.addConstraint(Sketcher.Constraint("DistanceX", 7, 3, 7, 2, 0.375001))
sketch6.addConstraint(Sketcher.Constraint("DistanceX", 6, 2, 7, 2, 0.375))
sketch6.addConstraint(Sketcher.Constraint("DistanceX", 11, 2, 11, 1, 2.567679))
sketch6.addConstraint(Sketcher.Constraint("DistanceY", 28, 1, 28, 2, 39.010939))
sketch6.addConstraint(Sketcher.Constraint("DistanceX", 27, 3, -1, 1, 0.1832))
sketch6.addConstraint(Sketcher.Constraint("DistanceX", 3, 2, -1, 1, 12.707601))
sketch6.addConstraint(Sketcher.Constraint("DistanceY", 16, 3, 21, 3, 35.426802))
sketch6.addConstraint(Sketcher.Constraint("DistanceY", 16, 3, 23, 3, 35.4146))
sketch6.addConstraint(Sketcher.Constraint("DistanceY", 16, 3, 32, 3, 6.234598))
sketch6.addConstraint(Sketcher.Constraint("DistanceY", 14, 3, 14, 1, 0.714902))
sketch6.addConstraint(Sketcher.Constraint("DistanceY", 15, 2, 31, 2, 3.372701))
sketch6.addConstraint(Sketcher.Constraint("DistanceX", 32, 1, 16, 1, 2.935602))
sketch6.addConstraint(Sketcher.Constraint("Distance", 4, 10.893142))
sketch6.addConstraint(Sketcher.Constraint("Distance", 31, 31.13977))
sketch6.addConstraint(Sketcher.Constraint("Distance", 33, 14.35453))
sketch6.addConstraint(Sketcher.Constraint("DistanceX", 2, 1, 2, 2, 6.612175))
sketch6.addConstraint(Sketcher.Constraint("DistanceX", 6, 1, 6, 2, 6.982618))
sketch6.addConstraint(Sketcher.Constraint("DistanceX", 17, 1, 17, 2, 1.799853))
sketch6.addConstraint(Sketcher.Constraint("DistanceX", 22, 1, 22, 2, 1.376557))
sketch6.addConstraint(Sketcher.Constraint("DistanceX", 29, 1, 29, 2, 14.451386))
sketch6.addConstraint(Sketcher.Constraint("DistanceY", 24, 1, 24, 2, 0.783353))
sketch6.addConstraint(Sketcher.Constraint("DistanceX", 3, 3, -1, 1, 13.387818))
sketch6.addConstraint(Sketcher.Constraint("DistanceX", -1, 1, 7, 3, 5.565388))
sketch6.addConstraint(Sketcher.Constraint("DistanceX", 16, 3, -1, 1, 1.881579))
sketch6.addConstraint(Sketcher.Constraint("DistanceX", -1, 1, 21, 3, 3.047629))
sketch6.addConstraint(Sketcher.Constraint("DistanceX", -1, 1, 25, 3, 4.279252))
sketch6.addConstraint(Sketcher.Constraint("DistanceY", -1, 1, 25, 3, 17.320991))
sketch6.addConstraint(Sketcher.Constraint("DistanceY", 4, 2, -1, 1, 19.140382))
sketch6.addConstraint(Sketcher.Constraint("DistanceY", 13, 2, -1, 1, 21.003811))
sketch6.addConstraint(Sketcher.Constraint("DistanceX", -1, 1, 25, 2, 4.809591))
sketch6.addConstraint(Sketcher.Constraint("DistanceX", 31, 2, -1, 1, 3.027789))
sketch6.addConstraint(Sketcher.Constraint("DistanceX", 12, 3, 9, 3, 3.317682))
sketch6.addConstraint(Sketcher.Constraint("DistanceX", 14, 3, 12, 3, 11.738421))
sketch6.addConstraint(Sketcher.Constraint("DistanceY", 20, 2, 21, 3, 0.47934))
sketch6.addConstraint(Sketcher.Constraint("DistanceY", 27, 3, 26, 2, 0.653861))
pad6 = body14.newObject("PartDesign::Pad", "Pad005")
pad6.Profile = sketch6
pad6.Length = 17
doc.recompute()

boolean12 = body14.newObject("PartDesign::Boolean", "Boolean011")
boolean12.Type = "Cut"
boolean12.addObjects([body13])

doc.recompute()
